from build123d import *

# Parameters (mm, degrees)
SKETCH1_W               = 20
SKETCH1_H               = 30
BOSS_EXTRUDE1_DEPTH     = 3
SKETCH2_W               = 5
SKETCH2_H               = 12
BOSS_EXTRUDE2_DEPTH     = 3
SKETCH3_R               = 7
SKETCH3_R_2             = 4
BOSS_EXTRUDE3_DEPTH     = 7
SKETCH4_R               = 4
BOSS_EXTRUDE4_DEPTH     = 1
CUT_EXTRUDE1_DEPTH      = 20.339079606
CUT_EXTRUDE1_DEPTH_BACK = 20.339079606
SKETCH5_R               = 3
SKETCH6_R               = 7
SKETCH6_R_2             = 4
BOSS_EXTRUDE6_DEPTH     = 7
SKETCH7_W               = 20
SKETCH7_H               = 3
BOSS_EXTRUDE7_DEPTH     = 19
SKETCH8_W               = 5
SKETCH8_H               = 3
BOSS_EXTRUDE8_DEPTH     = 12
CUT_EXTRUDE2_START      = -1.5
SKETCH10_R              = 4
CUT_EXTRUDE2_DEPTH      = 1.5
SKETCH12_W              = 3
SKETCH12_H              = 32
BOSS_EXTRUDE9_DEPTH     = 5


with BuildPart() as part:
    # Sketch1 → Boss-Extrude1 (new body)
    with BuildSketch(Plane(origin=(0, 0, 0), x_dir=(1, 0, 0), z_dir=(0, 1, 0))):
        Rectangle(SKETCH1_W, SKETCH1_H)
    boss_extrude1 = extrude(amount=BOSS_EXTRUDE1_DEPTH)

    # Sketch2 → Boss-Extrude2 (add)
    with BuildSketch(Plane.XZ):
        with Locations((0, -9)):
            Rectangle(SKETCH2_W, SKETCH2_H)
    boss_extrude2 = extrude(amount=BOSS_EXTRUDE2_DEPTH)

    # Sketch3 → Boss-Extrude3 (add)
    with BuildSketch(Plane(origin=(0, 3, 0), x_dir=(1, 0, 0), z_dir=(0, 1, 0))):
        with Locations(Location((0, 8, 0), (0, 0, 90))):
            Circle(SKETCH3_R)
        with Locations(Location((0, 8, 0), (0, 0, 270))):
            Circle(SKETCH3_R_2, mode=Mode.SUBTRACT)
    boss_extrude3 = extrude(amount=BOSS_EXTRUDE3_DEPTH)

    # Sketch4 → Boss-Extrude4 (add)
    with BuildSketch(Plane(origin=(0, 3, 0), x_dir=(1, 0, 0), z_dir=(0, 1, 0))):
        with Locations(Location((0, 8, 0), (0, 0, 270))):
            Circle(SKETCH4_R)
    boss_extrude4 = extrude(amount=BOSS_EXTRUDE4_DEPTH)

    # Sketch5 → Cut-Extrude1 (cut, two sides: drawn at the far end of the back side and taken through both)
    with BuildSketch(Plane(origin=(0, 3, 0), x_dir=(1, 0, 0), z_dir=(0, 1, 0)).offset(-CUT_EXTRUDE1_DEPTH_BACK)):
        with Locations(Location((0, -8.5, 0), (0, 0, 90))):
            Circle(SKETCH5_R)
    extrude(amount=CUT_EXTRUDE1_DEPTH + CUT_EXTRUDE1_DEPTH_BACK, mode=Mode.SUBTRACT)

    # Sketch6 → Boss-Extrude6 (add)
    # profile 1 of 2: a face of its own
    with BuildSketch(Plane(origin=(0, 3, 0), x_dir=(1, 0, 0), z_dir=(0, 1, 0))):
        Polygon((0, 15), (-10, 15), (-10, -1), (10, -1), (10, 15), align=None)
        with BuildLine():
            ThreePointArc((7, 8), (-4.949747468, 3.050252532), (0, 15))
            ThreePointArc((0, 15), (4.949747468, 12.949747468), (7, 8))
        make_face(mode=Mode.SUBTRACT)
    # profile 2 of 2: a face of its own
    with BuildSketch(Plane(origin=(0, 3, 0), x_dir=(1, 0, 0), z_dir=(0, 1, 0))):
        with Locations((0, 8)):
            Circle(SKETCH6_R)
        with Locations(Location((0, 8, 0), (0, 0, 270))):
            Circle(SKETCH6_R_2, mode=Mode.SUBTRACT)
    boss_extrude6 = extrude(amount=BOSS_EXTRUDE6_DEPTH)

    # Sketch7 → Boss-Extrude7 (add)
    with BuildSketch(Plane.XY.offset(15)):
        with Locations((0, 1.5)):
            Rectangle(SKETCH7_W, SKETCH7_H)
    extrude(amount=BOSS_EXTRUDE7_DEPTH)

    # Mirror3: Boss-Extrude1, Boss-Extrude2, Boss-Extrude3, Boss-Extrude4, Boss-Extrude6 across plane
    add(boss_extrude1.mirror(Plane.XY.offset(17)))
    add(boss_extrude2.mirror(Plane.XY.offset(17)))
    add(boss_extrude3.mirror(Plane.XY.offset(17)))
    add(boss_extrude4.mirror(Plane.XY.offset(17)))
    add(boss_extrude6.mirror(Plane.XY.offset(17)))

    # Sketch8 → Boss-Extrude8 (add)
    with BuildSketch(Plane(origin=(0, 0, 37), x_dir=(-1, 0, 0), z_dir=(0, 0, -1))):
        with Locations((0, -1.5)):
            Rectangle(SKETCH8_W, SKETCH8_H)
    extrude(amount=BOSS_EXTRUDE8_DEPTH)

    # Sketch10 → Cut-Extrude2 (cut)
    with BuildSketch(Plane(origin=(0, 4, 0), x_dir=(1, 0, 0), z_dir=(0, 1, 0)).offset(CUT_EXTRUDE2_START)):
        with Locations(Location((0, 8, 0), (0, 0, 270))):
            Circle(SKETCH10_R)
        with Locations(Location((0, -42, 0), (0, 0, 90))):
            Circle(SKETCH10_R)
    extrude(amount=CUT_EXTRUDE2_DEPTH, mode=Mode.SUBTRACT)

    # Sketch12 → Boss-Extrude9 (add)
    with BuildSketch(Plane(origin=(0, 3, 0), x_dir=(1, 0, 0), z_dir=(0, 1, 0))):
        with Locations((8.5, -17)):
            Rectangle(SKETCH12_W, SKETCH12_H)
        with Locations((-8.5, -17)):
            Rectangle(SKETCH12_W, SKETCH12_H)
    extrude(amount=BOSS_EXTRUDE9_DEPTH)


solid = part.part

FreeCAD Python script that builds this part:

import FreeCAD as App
import Part
import Sketcher
Q = App.Units.Quantity


def add_polygon(sketch, points):
    """Adds a closed chain of lines whose ends are joined by coincident constraints."""
    first, n = sketch.GeometryCount, len(points)
    for a, b in zip(points, points[1:] + points[:1]):
        sketch.addGeometry(Part.LineSegment(App.Vector(*a, 0), App.Vector(*b, 0)), False)
    for i in range(n):
        sketch.addConstraint(Sketcher.Constraint("Coincident", first + i, 2, first + (i + 1) % n, 1))

doc = App.newDocument("Part")
body = doc.addObject("PartDesign::Body", "Body")

sketch1 = body.newObject("Sketcher::SketchObject", "Sketch")
sketch1.AttachmentSupport = (doc.getObject("XZ_Plane"), [""])
sketch1.MapMode = "FlatFace"
add_polygon(sketch1, [(-10, -15), (-10, 15), (10, 15), (10, -15)])
sketch1.addConstraint([
    Sketcher.Constraint("Vertical", 0),
    Sketcher.Constraint("Horizontal", 1),
    Sketcher.Constraint("Vertical", 2),
    Sketcher.Constraint("Horizontal", 3),
    Sketcher.Constraint("Symmetric", 0, 2, 2, 2, -1, 1),
    Sketcher.Constraint("DistanceX", 1, 1, 1, 2, Q("20 mm")),
    Sketcher.Constraint("DistanceY", 0, 1, 0, 2, Q("30 mm")),
])
pad1 = body.newObject("PartDesign::Pad", "Pad")
pad1.Profile = sketch1
pad1.Length = 3
pad1.Reversed = True

sketch2 = body.newObject("Sketcher::SketchObject", "Sketch001")
sketch2.AttachmentSupport = (doc.getObject("XZ_Plane"), [""])
sketch2.MapMode = "FlatFace"
add_polygon(sketch2, [(-2, -3), (-2, -15), (2, -15), (2, -3)])
sketch2.addConstraint([
    Sketcher.Constraint("Vertical", 0),
    Sketcher.Constraint("Horizontal", 1),
    Sketcher.Constraint("Vertical", 2),
    Sketcher.Constraint("Horizontal", 3),
    Sketcher.Constraint("DistanceX", 1, 1, 1, 2, Q("5 mm")),
    Sketcher.Constraint("DistanceY", 0, 2, 0, 1, Q("12 mm")),
    Sketcher.Constraint("DistanceY", 0, 2, -1, 1, Q("15 mm")),
    Sketcher.Constraint("DistanceX", 0, 2, -1, 1, Q("2.5 mm")),
])
pad2 = body.newObject("PartDesign::Pad", "Pad001")
pad2.Profile = sketch2
pad2.Length = 3

sketch3 = body.newObject("Sketcher::SketchObject", "Sketch002")
sketch3.AttachmentSupport = (doc.getObject("XZ_Plane"), [""])
sketch3.MapMode = "FlatFace"
sketch3.AttachmentOffset = App.Placement(App.Vector(0, 0, -3), App.Rotation())
sketch3.addGeometry([
    Part.Circle(App.Vector(0, -8, 0), App.Vector(0, 0, 1), 7),
    Part.Circle(App.Vector(0, -8, 0), App.Vector(0, 0, 1), 4),
], False)
sketch3.addConstraint([
    Sketcher.Constraint("Coincident", 1, 3, 0, 3),
    Sketcher.Constraint("PointOnObject", 0, 3, -2),
    Sketcher.Constraint("Diameter", 0, Q("14 mm")),
    Sketcher.Constraint("Diameter", 1, Q("8 mm")),
    Sketcher.Constraint("DistanceY", 0, 3, -1, 1, Q("8 mm")),
])
pad3 = body.newObject("PartDesign::Pad", "Pad002")
pad3.Profile = sketch3
pad3.Length = 7
pad3.Reversed = True

sketch4 = body.newObject("Sketcher::SketchObject", "Sketch003")
sketch4.AttachmentSupport = (doc.getObject("XZ_Plane"), [""])
sketch4.MapMode = "FlatFace"
sketch4.AttachmentOffset = App.Placement(App.Vector(0, 0, -3), App.Rotation())
sketch4.addGeometry(Part.Circle(App.Vector(0, -8, 0), App.Vector(0, 0, 1), 4), False)
sketch4.addConstraint([
    Sketcher.Constraint("PointOnObject", 0, 3, -2),
    Sketcher.Constraint("Diameter", 0, Q("8 mm")),
    Sketcher.Constraint("DistanceY", 0, 3, -1, 1, Q("8 mm")),
])
pad4 = body.newObject("PartDesign::Pad", "Pad003")
pad4.Profile = sketch4
pad4.Length = 1
pad4.Reversed = True

sketch5 = body.newObject("Sketcher::SketchObject", "Sketch004")
sketch5.AttachmentSupport = (doc.getObject("XZ_Plane"), [""])
sketch5.MapMode = "FlatFace"
sketch5.AttachmentOffset = App.Placement(App.Vector(0, 0, -3), App.Rotation())
sketch5.addGeometry(Part.Circle(App.Vector(0, 8.5, 0), App.Vector(0, 0, 1), 3), False)
sketch5.addConstraint([
    Sketcher.Constraint("PointOnObject", 0, 3, -2),
    Sketcher.Constraint("Diameter", 0, Q("6 mm")),
    Sketcher.Constraint("DistanceY", -1, 1, 0, 3, Q("8.5 mm")),
])
pocket1 = body.newObject("PartDesign::Pocket", "Pocket")
pocket1.Profile = sketch5
pocket1.Type = "ThroughAll"
pocket1.Midplane = True

sketch6 = body.newObject("Sketcher::SketchObject", "Sketch005")
sketch6.AttachmentSupport = (doc.getObject("XZ_Plane"), [""])
sketch6.MapMode = "FlatFace"
sketch6.AttachmentOffset = App.Placement(App.Vector(0, 0, -3), App.Rotation())
add_polygon(sketch6, [(10, -15), (-10, -15), (-10, 1), (10, 1)])
sketch6.addGeometry(Part.Circle(App.Vector(0, -8, 0), App.Vector(0, 0, 1), 4), False)
sketch6.addConstraint([
    Sketcher.Constraint("Horizontal", 0),
    Sketcher.Constraint("Vertical", 1),
    Sketcher.Constraint("Horizontal", 2),
    Sketcher.Constraint("Vertical", 3),
    Sketcher.Constraint("PointOnObject", 4, 3, -2),
    Sketcher.Constraint("Diameter", 4, Q("8 mm")),
    Sketcher.Constraint("DistanceX", 0, 2, 0, 1, Q("20 mm")),
    Sketcher.Constraint("DistanceY", 1, 1, 1, 2, Q("16 mm")),
    Sketcher.Constraint("DistanceY", 4, 3, -1, 1, Q("8 mm")),
    Sketcher.Constraint("DistanceX", 0, 2, -1, 1, Q("10 mm")),
    Sketcher.Constraint("DistanceY", 0, 2, -1, 1, Q("15 mm")),
])
pad5 = body.newObject("PartDesign::Pad", "Pad004")
pad5.Profile = sketch6
pad5.Length = 7
pad5.Reversed = True

sketch7 = body.newObject("Sketcher::SketchObject", "Sketch006")
sketch7.AttachmentSupport = (doc.getObject("XY_Plane"), [""])
sketch7.MapMode = "FlatFace"
sketch7.AttachmentOffset = App.Placement(App.Vector(0, 0, 15), App.Rotation())
add_polygon(sketch7, [(-10, 3), (-10, 0), (10, 0), (10, 3)])
sketch7.addConstraint([
    Sketcher.Constraint("Vertical", 0),
    Sketcher.Constraint("Horizontal", 1),
    Sketcher.Constraint("Vertical", 2),
    Sketcher.Constraint("Horizontal", 3),
    Sketcher.Constraint("Symmetric", 0, 2, 1, 2, -1, 1),
    Sketcher.Constraint("DistanceX", 1, 1, 1, 2, Q("20 mm")),
    Sketcher.Constraint("DistanceY", 0, 2, 0, 1, Q("3 mm")),
])
pad6 = body.newObject("PartDesign::Pad", "Pad005")
pad6.Profile = sketch7
pad6.Length = 19
doc.recompute()

datumplane = body.newObject("PartDesign::Plane", "DatumPlane")
datumplane.AttachmentSupport = (doc.getObject("XY_Plane"), [""])
datumplane.MapMode = "FlatFace"
datumplane.AttachmentOffset = App.Placement(App.Vector(0, 0, 17), App.Rotation())
mirrored = body.newObject("PartDesign::Mirrored", "Mirrored")
mirrored.Originals = [pad1, pad2, pad3, pad4, pad5]
mirrored.MirrorPlane = (datumplane, [""])
body.Tip = mirrored

sketch8 = body.newObject("Sketcher::SketchObject", "Sketch007")
sketch8.AttachmentSupport = (doc.getObject("XY_Plane"), [""])
sketch8.MapMode = "FlatFace"
sketch8.AttachmentOffset = App.Placement(App.Vector(0, 0, 37), App.Rotation())
add_polygon(sketch8, [(2.5, 0), (2.5, -3), (-2.5, -3), (-2.5, 0)])
sketch8.addConstraint([
    Sketcher.Constraint("Vertical", 0),
    Sketcher.Constraint("Horizontal", 1),
    Sketcher.Constraint("Vertical", 2),
    Sketcher.Constraint("Horizontal", 3),
    Sketcher.Constraint("Symmetric", 2, 2, 3, 2, -1, 1),
    Sketcher.Constraint("DistanceX", 1, 2, 1, 1, Q("5 mm")),
    Sketcher.Constraint("DistanceY", 0, 2, 0, 1, Q("3 mm")),
])
pad7 = body.newObject("PartDesign::Pad", "Pad006")
pad7.Profile = sketch8
pad7.Length = 12
pad7.Reversed = True

sketch9 = body.newObject("Sketcher::SketchObject", "Sketch008")
sketch9.AttachmentSupport = (doc.getObject("XZ_Plane"), [""])
sketch9.MapMode = "FlatFace"
sketch9.AttachmentOffset = App.Placement(App.Vector(0, 0, -2.5), App.Rotation())
sketch9.addGeometry([
    Part.Circle(App.Vector(0, -8, 0), App.Vector(0, 0, 1), 4),
    Part.Circle(App.Vector(0, 42, 0), App.Vector(0, 0, 1), 4),
], False)
sketch9.addConstraint([
    Sketcher.Constraint("Equal", 0, 1),
    Sketcher.Constraint("PointOnObject", 0, 3, -2),
    Sketcher.Constraint("PointOnObject", 1, 3, -2),
    Sketcher.Constraint("Diameter", 0, Q("8 mm")),
    Sketcher.Constraint("DistanceY", 0, 3, -1, 1, Q("8 mm")),
    Sketcher.Constraint("DistanceY", -1, 1, 1, 3, Q("42 mm")),
])
pocket2 = body.newObject("PartDesign::Pocket", "Pocket001")
pocket2.Profile = sketch9
pocket2.Length = 1.5

sketch10 = body.newObject("Sketcher::SketchObject", "Sketch009")
sketch10.AttachmentSupport = (doc.getObject("XZ_Plane"), [""])
sketch10.MapMode = "FlatFace"
sketch10.AttachmentOffset = App.Placement(App.Vector(0, 0, -3), App.Rotation())
add_polygon(sketch10, [(7, 1), (7, 33), (10, 33), (10, 1)])
add_polygon(sketch10, [(-10, 1), (-10, 33), (-7, 33), (-7, 1)])
sketch10.addConstraint([
    Sketcher.Constraint("Vertical", 0),
    Sketcher.Constraint("Horizontal", 1),
    Sketcher.Constraint("Vertical", 2),
    Sketcher.Constraint("Horizontal", 3),
    Sketcher.Constraint("Vertical", 4),
    Sketcher.Constraint("Horizontal", 5),
    Sketcher.Constraint("Vertical", 6),
    Sketcher.Constraint("Horizontal", 7),
    Sketcher.Constraint("Symmetric", 1, 2, 4, 2, -2),
    Sketcher.Constraint("Symmetric", 3, 2, 6, 2, -2),
    Sketcher.Constraint("DistanceX", 1, 1, 1, 2, Q("3 mm")),
    Sketcher.Constraint("DistanceY", 0, 1, 0, 2, Q("32 mm")),
    Sketcher.Constraint("DistanceX", -1, 1, 0, 2, Q("7 mm")),
    Sketcher.Constraint("DistanceY", -1, 1, 0, 2, Q("33 mm")),
])
pad8 = body.newObject("PartDesign::Pad", "Pad007")
pad8.Profile = sketch10
pad8.Length = 5
pad8.Reversed = True

doc.recompute()
